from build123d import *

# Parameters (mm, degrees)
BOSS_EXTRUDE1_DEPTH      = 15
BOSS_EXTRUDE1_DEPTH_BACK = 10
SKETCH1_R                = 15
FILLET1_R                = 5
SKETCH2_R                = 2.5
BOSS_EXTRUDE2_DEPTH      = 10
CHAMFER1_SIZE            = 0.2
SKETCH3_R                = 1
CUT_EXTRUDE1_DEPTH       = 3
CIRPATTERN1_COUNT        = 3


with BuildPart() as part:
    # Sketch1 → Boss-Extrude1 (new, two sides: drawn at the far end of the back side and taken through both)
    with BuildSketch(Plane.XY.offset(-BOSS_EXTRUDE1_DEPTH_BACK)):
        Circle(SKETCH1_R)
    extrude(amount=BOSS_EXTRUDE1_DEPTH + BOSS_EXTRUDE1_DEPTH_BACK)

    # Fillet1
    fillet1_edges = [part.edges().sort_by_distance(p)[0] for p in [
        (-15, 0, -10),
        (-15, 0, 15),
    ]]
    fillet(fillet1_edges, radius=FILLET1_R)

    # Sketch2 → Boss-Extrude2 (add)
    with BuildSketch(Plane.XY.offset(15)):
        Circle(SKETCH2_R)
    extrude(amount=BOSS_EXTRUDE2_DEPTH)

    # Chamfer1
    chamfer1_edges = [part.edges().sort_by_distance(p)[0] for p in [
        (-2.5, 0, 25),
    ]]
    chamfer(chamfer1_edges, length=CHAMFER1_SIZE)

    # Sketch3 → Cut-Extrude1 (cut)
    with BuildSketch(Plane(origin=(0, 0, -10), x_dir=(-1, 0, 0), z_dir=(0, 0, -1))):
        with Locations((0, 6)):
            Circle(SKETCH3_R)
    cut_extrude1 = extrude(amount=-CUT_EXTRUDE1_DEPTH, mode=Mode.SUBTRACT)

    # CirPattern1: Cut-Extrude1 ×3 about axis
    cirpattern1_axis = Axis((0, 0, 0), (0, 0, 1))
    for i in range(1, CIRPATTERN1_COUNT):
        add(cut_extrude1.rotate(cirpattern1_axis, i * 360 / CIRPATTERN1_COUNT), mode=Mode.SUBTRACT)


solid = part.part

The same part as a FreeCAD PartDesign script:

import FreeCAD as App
import Part
import Sketcher
from FreeCAD import Vector


def edges_at(feature, points):
    """Names of the edges that pass closest to the given points."""
    edges = feature.Shape.Edges
    near = lambda p: min(range(len(edges)), key=lambda i: edges[i].distToShape(Part.Vertex(*p))[0])
    return sorted({f"Edge{near(p) + 1}" for p in points})

doc = App.newDocument("Part")
body = doc.addObject("PartDesign::Body", "Body")

# Sketch on XY plane
sketch1 = doc.addObject("Sketcher::SketchObject", "Sketch")
body.addObject(sketch1)
sketch1.AttachmentSupport = (doc.XY_Plane, [""])
sketch1.MapMode = "FlatFace"
sketch1.addGeometry(Part.Circle(Vector(0, 0, 0), Vector(0, 0, 1), 15), False)
sketch1.addConstraint([
    Sketcher.Constraint("Coincident", 0, 3, -1, 1),
    Sketcher.Constraint("Diameter", 0, 30.0),
])
pad1 = doc.addObject("PartDesign::Pad", "Pad")
body.addObject(pad1)
pad1.Profile = sketch1
pad1.Type = "TwoLengths"
pad1.Length = 15
pad1.Length2 = 10
doc.recompute()

fillet = doc.addObject("PartDesign::Fillet", "Fillet")
body.addObject(fillet)
fillet.Base = (pad1, edges_at(pad1, [(-15, 0, -10), (-15, 0, 15)]))
fillet.Radius = 5

# Sketch on XY plane
sketch2 = doc.addObject("Sketcher::SketchObject", "Sketch001")
body.addObject(sketch2)
sketch2.AttachmentSupport = (doc.XY_Plane, [""])
sketch2.MapMode = "FlatFace"
sketch2.AttachmentOffset = App.Placement(Vector(0, 0, 15), App.Rotation())
sketch2.addGeometry(Part.Circle(Vector(0, 0, 0), Vector(0, 0, 1), 2.5), False)
sketch2.addConstraint([
    Sketcher.Constraint("Coincident", 0, 3, -1, 1),
    Sketcher.Constraint("Diameter", 0, 5.0),
])
pad2 = doc.addObject("PartDesign::Pad", "Pad001")
body.addObject(pad2)
pad2.Profile = sketch2
pad2.Length = 10
doc.recompute()

chamfer = doc.addObject("PartDesign::Chamfer", "Chamfer")
body.addObject(chamfer)
chamfer.Base = (pad2, edges_at(pad2, [(-2.5, 0, 25)]))
chamfer.Size = 0.2

# Sketch on XY plane
sketch3 = doc.addObject("Sketcher::SketchObject", "Sketch002")
body.addObject(sketch3)
sketch3.AttachmentSupport = (doc.XY_Plane, [""])
sketch3.MapMode = "FlatFace"
sketch3.AttachmentOffset = App.Placement(Vector(0, 0, -10), App.Rotation())
sketch3.addGeometry(Part.Circle(Vector(0, 6, 0), Vector(0, 0, 1), 1), False)
sketch3.addConstraint([
    Sketcher.Constraint("PointOnObject", 0, 3, -2),
    Sketcher.Constraint("Diameter", 0, 2.0),
    Sketcher.Constraint("DistanceY", -1, 1, 0, 3, 6.0),
])
pocket1 = doc.addObject("PartDesign::Pocket", "Pocket")
body.addObject(pocket1)
pocket1.Profile = sketch3
pocket1.Length = 3
pocket1.Reversed = True
doc.recompute()

polarpattern = doc.addObject("PartDesign::PolarPattern", "PolarPattern")
body.addObject(polarpattern)
polarpattern.Originals = [pocket1]
polarpattern.Axis = (doc.Z_Axis, [""])
polarpattern.Angle = 360
polarpattern.Occurrences = 3
body.Tip = polarpattern

doc.recompute()
